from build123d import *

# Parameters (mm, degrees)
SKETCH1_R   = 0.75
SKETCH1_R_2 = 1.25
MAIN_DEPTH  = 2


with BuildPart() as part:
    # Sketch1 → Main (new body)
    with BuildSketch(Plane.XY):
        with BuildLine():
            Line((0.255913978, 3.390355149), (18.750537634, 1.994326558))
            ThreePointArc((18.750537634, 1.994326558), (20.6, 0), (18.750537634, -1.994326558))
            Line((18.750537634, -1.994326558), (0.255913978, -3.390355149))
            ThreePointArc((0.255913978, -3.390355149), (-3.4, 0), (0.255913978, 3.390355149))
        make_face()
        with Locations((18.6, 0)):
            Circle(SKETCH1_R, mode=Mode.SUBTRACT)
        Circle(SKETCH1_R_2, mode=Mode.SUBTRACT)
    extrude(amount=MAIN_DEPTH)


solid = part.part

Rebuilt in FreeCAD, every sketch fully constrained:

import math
import FreeCAD as App
import Part
import Sketcher

V = App.Vector
Q = App.Units.Quantity

doc = App.newDocument("Part")
body = doc.addObject("PartDesign::Body", "Body")

sketch1 = body.newObject("Sketcher::SketchObject", "Sketch")
sketch1.AttachmentSupport = (doc.getObject("XY_Plane"), [""])
sketch1.MapMode = "FlatFace"
sketch1.addGeometry(Part.LineSegment(V(18.750538, 1.994327, 0), V(0.255914, 3.390355, 0)), False)
sketch1.addGeometry(Part.ArcOfCircle(Part.Circle(V(0, 0, 0), V(0, 0, 1), 3.4), math.radians(85.683332), math.radians(274.316668)), False)
sketch1.addGeometry(Part.LineSegment(V(0.255914, -3.390355, 0), V(18.750538, -1.994327, 0)), False)
sketch1.addGeometry(Part.ArcOfCircle(Part.Circle(V(18.6, 0, 0), V(0, 0, 1), 2), math.radians(-85.683332), math.radians(85.683332)), False)
sketch1.addGeometry(Part.Circle(V(18.6, 0, 0), V(0, 0, 1), 0.75), False)
sketch1.addGeometry(Part.Circle(V(0, 0, 0), V(0, 0, 1), 1.25), False)
sketch1.addConstraint(Sketcher.Constraint("Tangent", 0, 2, 1, 1))
sketch1.addConstraint(Sketcher.Constraint("Tangent", 1, 2, 2, 1))
sketch1.addConstraint(Sketcher.Constraint("Tangent", 2, 2, 3, 1))
sketch1.addConstraint(Sketcher.Constraint("Tangent", 3, 2, 0, 1))
sketch1.addConstraint(Sketcher.Constraint("Coincident", 1, 3, -1, 1))
sketch1.addConstraint(Sketcher.Constraint("Coincident", 5, 3, -1, 1))
sketch1.addConstraint(Sketcher.Constraint("Coincident", 4, 3, 3, 3))
sketch1.addConstraint(Sketcher.Constraint("PointOnObject", 3, 3, -1))
sketch1.addConstraint(Sketcher.Constraint("Radius", 3, Q("2 mm")))
sketch1.addConstraint(Sketcher.Constraint("Diameter", 4, Q("1.5 mm")))
sketch1.addConstraint(Sketcher.Constraint("Diameter", 5, Q("2.5 mm")))
sketch1.addConstraint(Sketcher.Constraint("Radius", 1, Q("3.4 mm")))
sketch1.addConstraint(Sketcher.Constraint("DistanceX", -1, 1, 3, 3, Q("18.6 mm")))
pad1 = body.newObject("PartDesign::Pad", "Pad")
pad1.Profile = sketch1
pad1.Length = 2

doc.recompute()
